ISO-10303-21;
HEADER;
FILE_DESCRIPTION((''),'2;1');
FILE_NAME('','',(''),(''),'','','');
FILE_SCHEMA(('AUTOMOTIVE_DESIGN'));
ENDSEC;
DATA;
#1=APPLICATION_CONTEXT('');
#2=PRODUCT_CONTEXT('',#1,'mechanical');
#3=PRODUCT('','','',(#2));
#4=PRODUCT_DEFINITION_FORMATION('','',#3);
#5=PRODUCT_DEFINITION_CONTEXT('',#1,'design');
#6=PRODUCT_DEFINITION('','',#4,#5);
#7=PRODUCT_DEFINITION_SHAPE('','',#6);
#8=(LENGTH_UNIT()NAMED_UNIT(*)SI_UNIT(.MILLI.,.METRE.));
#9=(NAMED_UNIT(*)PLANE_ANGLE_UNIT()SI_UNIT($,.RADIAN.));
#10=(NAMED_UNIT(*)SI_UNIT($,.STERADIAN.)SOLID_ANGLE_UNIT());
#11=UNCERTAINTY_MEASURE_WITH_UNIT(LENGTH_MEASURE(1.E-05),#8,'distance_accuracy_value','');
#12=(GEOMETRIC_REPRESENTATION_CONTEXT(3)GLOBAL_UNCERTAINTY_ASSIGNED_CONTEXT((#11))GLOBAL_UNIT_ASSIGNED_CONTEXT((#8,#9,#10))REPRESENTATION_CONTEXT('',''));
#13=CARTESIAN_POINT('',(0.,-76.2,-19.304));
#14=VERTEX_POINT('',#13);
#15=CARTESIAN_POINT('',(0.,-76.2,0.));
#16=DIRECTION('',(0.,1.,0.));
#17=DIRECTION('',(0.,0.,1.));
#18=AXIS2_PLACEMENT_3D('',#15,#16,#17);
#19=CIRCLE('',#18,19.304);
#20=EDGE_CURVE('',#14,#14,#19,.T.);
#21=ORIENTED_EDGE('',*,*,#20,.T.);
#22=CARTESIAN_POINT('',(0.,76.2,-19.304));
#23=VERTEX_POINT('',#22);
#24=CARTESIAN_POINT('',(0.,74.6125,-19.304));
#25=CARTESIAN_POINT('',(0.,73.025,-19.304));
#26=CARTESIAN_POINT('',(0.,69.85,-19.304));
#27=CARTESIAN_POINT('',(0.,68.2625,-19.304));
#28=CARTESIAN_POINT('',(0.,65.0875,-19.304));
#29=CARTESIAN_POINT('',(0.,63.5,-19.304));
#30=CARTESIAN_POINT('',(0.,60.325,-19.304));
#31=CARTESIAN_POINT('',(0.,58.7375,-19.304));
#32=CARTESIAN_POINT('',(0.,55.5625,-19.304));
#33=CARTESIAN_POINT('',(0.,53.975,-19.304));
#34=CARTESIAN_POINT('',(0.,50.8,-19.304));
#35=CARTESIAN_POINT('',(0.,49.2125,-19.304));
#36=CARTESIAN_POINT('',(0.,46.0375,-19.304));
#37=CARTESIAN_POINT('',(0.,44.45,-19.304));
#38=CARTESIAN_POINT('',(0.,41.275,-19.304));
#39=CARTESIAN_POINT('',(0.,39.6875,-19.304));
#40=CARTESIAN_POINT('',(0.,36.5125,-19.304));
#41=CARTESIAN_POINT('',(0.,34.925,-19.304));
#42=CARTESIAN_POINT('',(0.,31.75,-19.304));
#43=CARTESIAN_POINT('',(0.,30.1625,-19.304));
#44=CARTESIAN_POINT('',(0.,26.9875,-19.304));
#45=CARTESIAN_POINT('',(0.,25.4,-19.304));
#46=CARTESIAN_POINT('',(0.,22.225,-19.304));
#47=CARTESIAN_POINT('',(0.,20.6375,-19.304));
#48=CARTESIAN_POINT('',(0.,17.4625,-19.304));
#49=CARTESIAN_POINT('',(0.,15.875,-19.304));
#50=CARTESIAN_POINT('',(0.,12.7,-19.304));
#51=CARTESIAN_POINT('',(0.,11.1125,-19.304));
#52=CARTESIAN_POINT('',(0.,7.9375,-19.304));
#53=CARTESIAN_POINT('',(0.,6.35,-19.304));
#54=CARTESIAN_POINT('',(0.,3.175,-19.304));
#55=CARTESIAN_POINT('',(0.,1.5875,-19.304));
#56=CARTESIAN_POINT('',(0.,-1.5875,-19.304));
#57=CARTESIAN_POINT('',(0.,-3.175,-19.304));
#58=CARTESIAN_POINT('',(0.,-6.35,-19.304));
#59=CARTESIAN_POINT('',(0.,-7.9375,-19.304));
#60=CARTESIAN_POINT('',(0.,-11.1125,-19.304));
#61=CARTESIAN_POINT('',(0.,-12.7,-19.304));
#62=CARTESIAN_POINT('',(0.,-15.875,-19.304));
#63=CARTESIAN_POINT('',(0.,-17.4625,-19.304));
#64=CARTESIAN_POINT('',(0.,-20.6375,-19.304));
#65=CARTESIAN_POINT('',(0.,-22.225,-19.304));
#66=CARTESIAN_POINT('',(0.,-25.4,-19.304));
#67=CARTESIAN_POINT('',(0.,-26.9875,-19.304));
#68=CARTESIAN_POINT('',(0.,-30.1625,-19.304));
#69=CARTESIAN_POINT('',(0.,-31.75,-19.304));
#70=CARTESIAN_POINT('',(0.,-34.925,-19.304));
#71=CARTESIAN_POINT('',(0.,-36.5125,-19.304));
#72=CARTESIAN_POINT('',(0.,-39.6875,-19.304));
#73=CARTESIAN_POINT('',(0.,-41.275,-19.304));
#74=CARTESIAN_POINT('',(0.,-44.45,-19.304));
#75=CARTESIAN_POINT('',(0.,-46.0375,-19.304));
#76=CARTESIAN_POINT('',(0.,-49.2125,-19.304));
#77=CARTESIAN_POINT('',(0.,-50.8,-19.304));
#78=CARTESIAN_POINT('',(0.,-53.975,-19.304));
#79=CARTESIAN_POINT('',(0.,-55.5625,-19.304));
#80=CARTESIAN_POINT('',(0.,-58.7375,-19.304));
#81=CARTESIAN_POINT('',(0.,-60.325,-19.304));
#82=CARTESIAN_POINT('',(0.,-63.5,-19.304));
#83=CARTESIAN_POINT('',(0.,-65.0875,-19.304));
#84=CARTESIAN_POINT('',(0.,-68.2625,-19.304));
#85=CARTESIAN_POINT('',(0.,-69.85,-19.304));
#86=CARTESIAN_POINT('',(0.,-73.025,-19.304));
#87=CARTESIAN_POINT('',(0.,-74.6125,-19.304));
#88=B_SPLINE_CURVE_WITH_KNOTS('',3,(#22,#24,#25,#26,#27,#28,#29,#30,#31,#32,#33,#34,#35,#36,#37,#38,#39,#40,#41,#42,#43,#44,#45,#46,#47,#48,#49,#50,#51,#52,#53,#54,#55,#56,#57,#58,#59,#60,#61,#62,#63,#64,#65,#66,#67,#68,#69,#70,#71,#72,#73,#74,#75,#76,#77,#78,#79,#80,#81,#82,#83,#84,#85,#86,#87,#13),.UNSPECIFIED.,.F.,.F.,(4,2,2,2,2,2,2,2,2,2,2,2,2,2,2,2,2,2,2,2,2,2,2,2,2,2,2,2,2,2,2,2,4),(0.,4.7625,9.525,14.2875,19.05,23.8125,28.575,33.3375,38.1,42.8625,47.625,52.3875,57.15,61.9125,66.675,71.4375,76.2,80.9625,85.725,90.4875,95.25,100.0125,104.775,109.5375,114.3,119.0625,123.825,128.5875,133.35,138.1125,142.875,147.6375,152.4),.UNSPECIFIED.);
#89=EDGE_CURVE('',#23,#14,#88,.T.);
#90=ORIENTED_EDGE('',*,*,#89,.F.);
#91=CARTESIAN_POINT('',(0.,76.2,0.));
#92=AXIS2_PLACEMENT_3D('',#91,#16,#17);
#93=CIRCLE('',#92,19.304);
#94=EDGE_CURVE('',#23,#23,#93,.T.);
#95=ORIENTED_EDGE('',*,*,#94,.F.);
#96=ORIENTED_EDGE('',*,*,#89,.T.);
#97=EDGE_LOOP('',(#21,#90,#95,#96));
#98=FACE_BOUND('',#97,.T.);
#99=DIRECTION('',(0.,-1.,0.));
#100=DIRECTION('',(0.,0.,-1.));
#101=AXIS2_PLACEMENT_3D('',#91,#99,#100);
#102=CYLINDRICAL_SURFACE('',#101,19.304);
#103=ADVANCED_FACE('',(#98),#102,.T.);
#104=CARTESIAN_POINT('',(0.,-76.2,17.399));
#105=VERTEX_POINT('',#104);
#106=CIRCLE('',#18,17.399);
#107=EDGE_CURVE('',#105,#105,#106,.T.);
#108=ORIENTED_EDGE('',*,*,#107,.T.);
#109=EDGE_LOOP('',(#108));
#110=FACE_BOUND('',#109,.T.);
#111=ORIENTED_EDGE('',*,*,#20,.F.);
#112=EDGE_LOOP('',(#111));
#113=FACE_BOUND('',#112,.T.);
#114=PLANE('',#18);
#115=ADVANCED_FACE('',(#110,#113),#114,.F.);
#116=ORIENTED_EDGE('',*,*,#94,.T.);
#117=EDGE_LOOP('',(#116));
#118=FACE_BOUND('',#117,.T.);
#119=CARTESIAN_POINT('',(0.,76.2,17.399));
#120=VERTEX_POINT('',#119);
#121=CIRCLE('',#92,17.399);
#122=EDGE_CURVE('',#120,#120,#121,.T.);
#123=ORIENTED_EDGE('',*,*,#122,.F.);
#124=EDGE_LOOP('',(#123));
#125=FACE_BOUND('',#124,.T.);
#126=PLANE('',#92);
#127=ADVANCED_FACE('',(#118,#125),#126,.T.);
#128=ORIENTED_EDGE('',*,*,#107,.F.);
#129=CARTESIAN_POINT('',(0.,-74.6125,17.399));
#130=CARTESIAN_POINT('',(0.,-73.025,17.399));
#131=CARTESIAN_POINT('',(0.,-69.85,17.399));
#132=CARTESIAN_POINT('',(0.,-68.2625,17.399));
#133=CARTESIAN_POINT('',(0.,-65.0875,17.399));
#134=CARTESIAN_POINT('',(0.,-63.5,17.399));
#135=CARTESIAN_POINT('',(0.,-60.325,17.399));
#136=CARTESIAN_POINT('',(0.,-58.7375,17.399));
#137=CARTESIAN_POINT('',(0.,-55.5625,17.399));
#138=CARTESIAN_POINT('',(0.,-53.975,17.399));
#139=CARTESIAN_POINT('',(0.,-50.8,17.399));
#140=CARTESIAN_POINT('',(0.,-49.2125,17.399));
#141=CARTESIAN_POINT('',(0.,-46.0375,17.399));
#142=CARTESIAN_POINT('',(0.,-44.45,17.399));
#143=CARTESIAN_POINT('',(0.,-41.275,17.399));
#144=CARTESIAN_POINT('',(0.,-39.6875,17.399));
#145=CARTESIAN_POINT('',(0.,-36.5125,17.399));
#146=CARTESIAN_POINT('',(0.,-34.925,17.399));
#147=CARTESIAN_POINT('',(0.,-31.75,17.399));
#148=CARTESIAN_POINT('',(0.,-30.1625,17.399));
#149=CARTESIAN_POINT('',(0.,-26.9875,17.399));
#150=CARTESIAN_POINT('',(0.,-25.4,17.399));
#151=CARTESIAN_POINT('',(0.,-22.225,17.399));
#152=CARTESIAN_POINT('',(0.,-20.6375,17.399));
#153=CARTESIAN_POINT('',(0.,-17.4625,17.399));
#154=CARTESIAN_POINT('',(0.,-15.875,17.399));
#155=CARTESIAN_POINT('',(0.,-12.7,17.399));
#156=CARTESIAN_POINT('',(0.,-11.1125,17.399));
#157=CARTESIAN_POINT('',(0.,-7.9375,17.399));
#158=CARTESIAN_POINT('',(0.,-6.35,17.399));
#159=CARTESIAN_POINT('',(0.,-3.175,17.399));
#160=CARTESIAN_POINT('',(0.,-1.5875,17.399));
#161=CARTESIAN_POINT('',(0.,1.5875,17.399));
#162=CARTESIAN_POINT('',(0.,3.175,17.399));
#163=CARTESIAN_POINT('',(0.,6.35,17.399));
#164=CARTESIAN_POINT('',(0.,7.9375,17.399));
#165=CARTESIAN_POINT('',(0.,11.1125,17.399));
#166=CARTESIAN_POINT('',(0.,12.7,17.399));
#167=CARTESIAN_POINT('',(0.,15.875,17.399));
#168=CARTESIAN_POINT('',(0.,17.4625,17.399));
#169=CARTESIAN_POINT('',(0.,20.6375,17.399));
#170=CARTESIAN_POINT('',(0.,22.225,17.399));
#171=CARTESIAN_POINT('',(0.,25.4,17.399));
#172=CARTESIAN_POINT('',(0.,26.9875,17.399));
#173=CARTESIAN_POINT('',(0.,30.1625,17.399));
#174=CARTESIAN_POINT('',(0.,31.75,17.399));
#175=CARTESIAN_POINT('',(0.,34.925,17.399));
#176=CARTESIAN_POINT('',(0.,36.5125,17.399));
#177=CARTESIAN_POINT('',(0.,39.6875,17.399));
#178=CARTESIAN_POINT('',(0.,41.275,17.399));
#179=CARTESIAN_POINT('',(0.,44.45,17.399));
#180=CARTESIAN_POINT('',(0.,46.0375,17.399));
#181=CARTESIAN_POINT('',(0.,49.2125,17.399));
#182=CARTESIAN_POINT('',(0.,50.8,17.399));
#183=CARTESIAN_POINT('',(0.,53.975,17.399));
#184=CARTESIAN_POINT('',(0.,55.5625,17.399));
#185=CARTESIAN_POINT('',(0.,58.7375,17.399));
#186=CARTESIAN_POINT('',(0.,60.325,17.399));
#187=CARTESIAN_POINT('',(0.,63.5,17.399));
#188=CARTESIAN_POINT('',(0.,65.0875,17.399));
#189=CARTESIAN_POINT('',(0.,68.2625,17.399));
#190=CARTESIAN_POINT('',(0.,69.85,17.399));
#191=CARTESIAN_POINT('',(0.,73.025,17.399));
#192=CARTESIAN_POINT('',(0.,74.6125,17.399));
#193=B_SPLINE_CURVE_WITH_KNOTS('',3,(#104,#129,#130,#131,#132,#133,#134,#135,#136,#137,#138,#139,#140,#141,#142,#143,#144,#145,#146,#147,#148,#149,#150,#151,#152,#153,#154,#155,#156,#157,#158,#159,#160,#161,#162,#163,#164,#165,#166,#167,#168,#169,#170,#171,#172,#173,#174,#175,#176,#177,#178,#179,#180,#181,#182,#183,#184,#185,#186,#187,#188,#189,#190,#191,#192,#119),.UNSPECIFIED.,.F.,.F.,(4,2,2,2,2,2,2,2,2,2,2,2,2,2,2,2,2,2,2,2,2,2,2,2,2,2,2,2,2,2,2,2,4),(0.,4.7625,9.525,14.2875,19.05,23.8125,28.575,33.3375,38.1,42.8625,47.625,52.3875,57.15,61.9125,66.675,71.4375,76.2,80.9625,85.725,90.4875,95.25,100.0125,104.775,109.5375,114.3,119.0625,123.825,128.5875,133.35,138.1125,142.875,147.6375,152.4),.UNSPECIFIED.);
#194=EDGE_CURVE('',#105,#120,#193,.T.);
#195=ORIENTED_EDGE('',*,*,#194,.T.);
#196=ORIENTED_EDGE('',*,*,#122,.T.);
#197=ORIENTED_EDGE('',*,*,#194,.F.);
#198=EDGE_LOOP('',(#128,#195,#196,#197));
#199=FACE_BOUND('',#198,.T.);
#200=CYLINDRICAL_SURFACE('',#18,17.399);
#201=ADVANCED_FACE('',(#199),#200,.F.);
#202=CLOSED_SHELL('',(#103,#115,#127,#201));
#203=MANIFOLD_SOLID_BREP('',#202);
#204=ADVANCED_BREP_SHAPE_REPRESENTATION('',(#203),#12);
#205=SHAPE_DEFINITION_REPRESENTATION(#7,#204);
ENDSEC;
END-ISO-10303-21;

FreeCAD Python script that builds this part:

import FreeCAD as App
import Part
import Sketcher
from FreeCAD import Vector
Q = App.Units.Quantity

doc = App.newDocument("Part")
body = doc.addObject("PartDesign::Body", "Body")

# Sketch on XZ plane
sketch1 = doc.addObject("Sketcher::SketchObject", "Sketch")
body.addObject(sketch1)
sketch1.AttachmentSupport = (doc.XZ_Plane, [""])
sketch1.MapMode = "FlatFace"
sketch1.addGeometry(Part.Circle(Vector(0, 0, 0), Vector(0, 0, 1), 19), False)
sketch1.addConstraint(Sketcher.Constraint("Coincident", 0, 3, -1, 1))
sketch1.addConstraint(Sketcher.Constraint("Diameter", 0, Q("1.52 in")))
pad1 = doc.addObject("PartDesign::Pad", "Pad")
body.addObject(pad1)
pad1.Profile = sketch1
pad1.Length = Q("6 in")
pad1.Midplane = True

# Sketch on XZ plane
sketch2 = doc.addObject("Sketcher::SketchObject", "Sketch001")
body.addObject(sketch2)
sketch2.AttachmentSupport = (doc.XZ_Plane, [""])
sketch2.MapMode = "FlatFace"
sketch2.AttachmentOffset = App.Placement(Vector(0, 0, -3 * 25.4), App.Rotation())
sketch2.addGeometry(Part.Circle(Vector(0, 0, 0), Vector(0, 0, 1), 17), False)
sketch2.addConstraint(Sketcher.Constraint("Coincident", 0, 3, -1, 1))
sketch2.addConstraint(Sketcher.Constraint("Diameter", 0, Q("1.37 in")))
pocket1 = doc.addObject("PartDesign::Pocket", "Pocket")
body.addObject(pocket1)
pocket1.Profile = sketch2
pocket1.Type = "ThroughAll"
pocket1.Reversed = True

doc.recompute()
